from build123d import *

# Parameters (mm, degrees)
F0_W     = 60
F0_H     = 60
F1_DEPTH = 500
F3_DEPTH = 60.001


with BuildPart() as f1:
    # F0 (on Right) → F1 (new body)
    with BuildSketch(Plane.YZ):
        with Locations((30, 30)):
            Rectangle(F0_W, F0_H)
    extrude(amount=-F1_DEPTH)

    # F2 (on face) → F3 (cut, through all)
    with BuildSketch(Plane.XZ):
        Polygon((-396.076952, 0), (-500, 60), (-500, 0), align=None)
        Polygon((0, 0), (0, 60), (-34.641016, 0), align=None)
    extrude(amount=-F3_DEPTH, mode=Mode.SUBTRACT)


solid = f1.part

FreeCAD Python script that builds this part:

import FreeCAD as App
import Part
import Sketcher
Q = App.Units.Quantity


def add_polygon(sketch, points):
    """Adds a closed chain of lines whose ends are joined by coincident constraints."""
    first, n = sketch.GeometryCount, len(points)
    for a, b in zip(points, points[1:] + points[:1]):
        sketch.addGeometry(Part.LineSegment(App.Vector(*a, 0), App.Vector(*b, 0)), False)
    for i in range(n):
        sketch.addConstraint(Sketcher.Constraint("Coincident", first + i, 2, first + (i + 1) % n, 1))

doc = App.newDocument("Part")
body = doc.addObject("PartDesign::Body", "Body")

# Sketch on YZ plane
sketch1 = body.newObject("Sketcher::SketchObject", "Sketch")
sketch1.AttachmentSupport = (doc.getObject("YZ_Plane"), [""])
sketch1.MapMode = "FlatFace"
add_polygon(sketch1, [(0, 60), (0, 0), (60, 0), (60, 60)])  # lines 0-3
sketch1.addConstraint([
    Sketcher.Constraint("Vertical", 0),
    Sketcher.Constraint("Horizontal", 1),
    Sketcher.Constraint("Vertical", 2),
    Sketcher.Constraint("Horizontal", 3),
    Sketcher.Constraint("Coincident", 0, 2, -1, 1),
    Sketcher.Constraint("Equal", 3, 0),
    Sketcher.Constraint("DistanceX", 1, 1, 1, 2, 60.0),
])
pad1 = body.newObject("PartDesign::Pad", "Pad")
pad1.Profile = sketch1
pad1.Length = 500
pad1.Reversed = True

# Sketch on XZ plane
sketch2 = body.newObject("Sketcher::SketchObject", "Sketch001")
sketch2.AttachmentSupport = (doc.getObject("XZ_Plane"), [""])
sketch2.MapMode = "FlatFace"
add_polygon(sketch2, [(-396, 0), (-500, 60), (-500, 0)])  # lines 0-2
add_polygon(sketch2, [(0, 0), (0, 60), (-35, 0)])  # lines 3-5
sketch2.addConstraint([
    Sketcher.Constraint("Vertical", 1),
    Sketcher.Constraint("Horizontal", 2),
    Sketcher.Constraint("Vertical", 3),
    Sketcher.Constraint("Horizontal", 5),
    Sketcher.Constraint("Coincident", 5, 2, -1, 1),
    Sketcher.Constraint("PointOnObject", 1, 2, -1),
    Sketcher.Constraint("Perpendicular", 0, 4),
    Sketcher.Constraint("Horizontal", 0, 2, 3, 2),
    Sketcher.Constraint("DistanceY", 1, 2, 1, 1, 60.0),
    Sketcher.Constraint("Angle", 0, Q("150 deg")),
    Sketcher.Constraint("DistanceX", 0, 2, -1, 1, 500.0),
])
pocket1 = body.newObject("PartDesign::Pocket", "Pocket")
pocket1.Profile = sketch2
pocket1.Type = "ThroughAll"

doc.recompute()
